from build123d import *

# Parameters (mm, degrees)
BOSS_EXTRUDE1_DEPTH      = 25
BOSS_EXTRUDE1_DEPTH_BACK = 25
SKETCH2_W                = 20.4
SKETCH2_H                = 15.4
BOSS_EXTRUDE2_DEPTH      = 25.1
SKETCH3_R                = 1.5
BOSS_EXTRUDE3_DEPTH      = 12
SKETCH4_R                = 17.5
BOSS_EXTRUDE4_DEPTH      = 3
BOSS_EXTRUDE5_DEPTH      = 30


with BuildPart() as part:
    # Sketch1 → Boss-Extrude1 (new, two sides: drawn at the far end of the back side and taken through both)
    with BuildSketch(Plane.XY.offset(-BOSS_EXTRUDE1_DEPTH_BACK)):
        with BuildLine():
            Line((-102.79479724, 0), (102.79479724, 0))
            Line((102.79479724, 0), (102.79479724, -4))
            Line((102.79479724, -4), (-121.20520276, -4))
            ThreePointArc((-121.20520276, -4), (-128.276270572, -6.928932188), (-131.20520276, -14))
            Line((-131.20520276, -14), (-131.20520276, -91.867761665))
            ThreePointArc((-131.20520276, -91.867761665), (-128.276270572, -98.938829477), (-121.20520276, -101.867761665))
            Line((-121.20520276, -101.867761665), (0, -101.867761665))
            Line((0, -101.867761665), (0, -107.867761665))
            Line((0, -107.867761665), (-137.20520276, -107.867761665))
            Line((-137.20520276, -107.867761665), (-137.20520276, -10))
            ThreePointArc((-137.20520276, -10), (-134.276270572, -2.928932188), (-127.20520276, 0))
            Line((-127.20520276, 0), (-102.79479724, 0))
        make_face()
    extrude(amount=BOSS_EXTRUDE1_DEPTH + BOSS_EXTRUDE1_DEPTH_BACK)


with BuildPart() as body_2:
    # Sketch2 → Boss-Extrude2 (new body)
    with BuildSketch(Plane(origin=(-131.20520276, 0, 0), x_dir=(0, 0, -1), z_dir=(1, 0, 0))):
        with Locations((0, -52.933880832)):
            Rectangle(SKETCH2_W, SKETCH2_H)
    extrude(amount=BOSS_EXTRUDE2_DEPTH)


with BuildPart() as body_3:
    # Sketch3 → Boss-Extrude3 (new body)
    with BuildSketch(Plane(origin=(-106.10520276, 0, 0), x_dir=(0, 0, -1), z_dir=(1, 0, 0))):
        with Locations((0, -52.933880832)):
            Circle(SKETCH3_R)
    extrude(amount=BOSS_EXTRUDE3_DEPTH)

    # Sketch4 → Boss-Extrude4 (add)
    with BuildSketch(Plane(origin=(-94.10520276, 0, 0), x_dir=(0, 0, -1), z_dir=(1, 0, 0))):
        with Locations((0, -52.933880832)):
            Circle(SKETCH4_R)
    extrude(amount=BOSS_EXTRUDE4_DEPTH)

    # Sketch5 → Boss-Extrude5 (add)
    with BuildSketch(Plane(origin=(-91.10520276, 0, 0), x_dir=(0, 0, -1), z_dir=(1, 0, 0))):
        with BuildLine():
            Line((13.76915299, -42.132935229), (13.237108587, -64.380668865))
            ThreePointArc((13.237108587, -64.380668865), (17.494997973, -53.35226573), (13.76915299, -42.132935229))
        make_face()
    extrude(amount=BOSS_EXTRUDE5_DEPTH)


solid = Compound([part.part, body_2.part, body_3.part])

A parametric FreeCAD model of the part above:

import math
import FreeCAD as App
import Part
import Sketcher
from FreeCAD import Vector


def add_polygon(sketch, points):
    """Adds a closed chain of lines whose ends are joined by coincident constraints."""
    first, n = sketch.GeometryCount, len(points)
    for a, b in zip(points, points[1:] + points[:1]):
        sketch.addGeometry(Part.LineSegment(App.Vector(*a, 0), App.Vector(*b, 0)), False)
    for i in range(n):
        sketch.addConstraint(Sketcher.Constraint("Coincident", first + i, 2, first + (i + 1) % n, 1))

doc = App.newDocument("Part")
body = doc.addObject("PartDesign::Body", "Body")

# Sketch on XY plane
sketch1 = body.newObject("Sketcher::SketchObject", "Sketch")
sketch1.AttachmentSupport = (doc.getObject("XY_Plane"), [""])
sketch1.MapMode = "FlatFace"
sketch1.addGeometry([
    Part.LineSegment(Vector(102.8, -4, 0), Vector(102.8, 0, 0)),  # 0
    Part.LineSegment(Vector(102.8, 0, 0), Vector(-127.2, 0, 0)),  # 1
    Part.ArcOfCircle(Part.Circle(Vector(-127.2, -10, 0), Vector(0, 0, 1), 10), math.radians(90), math.radians(180)),  # 2
    Part.LineSegment(Vector(-137.2, -10, 0), Vector(-137.2, -107.9, 0)),  # 3
    Part.LineSegment(Vector(-137.2, -107.9, 0), Vector(0, -107.9, 0)),  # 4
    Part.LineSegment(Vector(0, -107.9, 0), Vector(0, -101.9, 0)),  # 5
    Part.LineSegment(Vector(0, -101.9, 0), Vector(-121.2, -101.9, 0)),  # 6
    Part.ArcOfCircle(Part.Circle(Vector(-121.2, -91.9, 0), Vector(0, 0, 1), 10), math.radians(180), math.radians(270)),  # 7
    Part.LineSegment(Vector(-131.2, -91.9, 0), Vector(-131.2, -14, 0)),  # 8
    Part.ArcOfCircle(Part.Circle(Vector(-121.2, -14, 0), Vector(0, 0, 1), 10), math.radians(90), math.radians(180)),  # 9
    Part.LineSegment(Vector(-121.2, -4, 0), Vector(102.8, -4, 0)),  # 10
], False)
sketch1.addConstraint([
    Sketcher.Constraint("Coincident", 0, 2, 1, 1),
    Sketcher.Constraint("Tangent", 1, 2, 2, 1),
    Sketcher.Constraint("Tangent", 2, 2, 3, 1),
    Sketcher.Constraint("Coincident", 3, 2, 4, 1),
    Sketcher.Constraint("Coincident", 4, 2, 5, 1),
    Sketcher.Constraint("Coincident", 5, 2, 6, 1),
    Sketcher.Constraint("Tangent", 6, 2, 7, 2),
    Sketcher.Constraint("Tangent", 7, 1, 8, 1),
    Sketcher.Constraint("Tangent", 8, 2, 9, 2),
    Sketcher.Constraint("Tangent", 9, 1, 10, 1),
    Sketcher.Constraint("Coincident", 10, 2, 0, 1),
    Sketcher.Constraint("Vertical", 0),
    Sketcher.Constraint("Horizontal", 1),
    Sketcher.Constraint("Vertical", 3),
    Sketcher.Constraint("Horizontal", 4),
    Sketcher.Constraint("Vertical", 5),
    Sketcher.Constraint("Horizontal", 6),
    Sketcher.Constraint("Vertical", 8),
    Sketcher.Constraint("Horizontal", 10),
    Sketcher.Constraint("Equal", 2, 7),
    Sketcher.Constraint("Equal", 7, 9),
    Sketcher.Constraint("PointOnObject", 0, 2, -1),
    Sketcher.Constraint("PointOnObject", 4, 2, -2),
    Sketcher.Constraint("Radius", 2, 10.0),
    Sketcher.Constraint("DistanceX", 1, 2, 1, 1, 230.0),
    Sketcher.Constraint("DistanceX", 10, 1, 10, 2, 224.0),
    Sketcher.Constraint("DistanceY", 0, 1, 0, 2, 4.0),
    Sketcher.Constraint("DistanceY", 5, 1, 5, 2, 6.0),
    Sketcher.Constraint("DistanceY", 3, 2, 3, 1, 97.867762),
    Sketcher.Constraint("DistanceX", 4, 1, 4, 2, 137.205203),
])
pad1 = body.newObject("PartDesign::Pad", "Pad")
pad1.Profile = sketch1
pad1.Type = "TwoLengths"
pad1.Length = 25
pad1.Length2 = 25
body2 = doc.addObject("PartDesign::Body", "Body001")

# Sketch on YZ plane
sketch2 = body2.newObject("Sketcher::SketchObject", "Sketch001")
sketch2.AttachmentSupport = (doc.getObject("YZ_Plane001"), [""])
sketch2.MapMode = "FlatFace"
sketch2.AttachmentOffset = App.Placement(Vector(0, 0, -131.205203), App.Rotation())
add_polygon(sketch2, [(-45, 10), (-61, 10), (-61, -10), (-45, -10)])  # lines 0-3
sketch2.addConstraint([
    Sketcher.Constraint("Horizontal", 0),
    Sketcher.Constraint("Vertical", 1),
    Sketcher.Constraint("Horizontal", 2),
    Sketcher.Constraint("Vertical", 3),
    Sketcher.Constraint("DistanceX", 0, 2, 0, 1, 15.4),
    Sketcher.Constraint("DistanceY", 1, 2, 1, 1, 20.4),
    Sketcher.Constraint("DistanceY", -1, 1, 0, 2, 10.2),
    Sketcher.Constraint("DistanceX", 0, 2, -1, 1, 60.633881),
])
pad2 = body2.newObject("PartDesign::Pad", "Pad001")
pad2.Profile = sketch2
pad2.Length = 25.1
body3 = doc.addObject("PartDesign::Body", "Body002")

# Sketch on YZ plane
sketch3 = body3.newObject("Sketcher::SketchObject", "Sketch002")
sketch3.AttachmentSupport = (doc.getObject("YZ_Plane002"), [""])
sketch3.MapMode = "FlatFace"
sketch3.AttachmentOffset = App.Placement(Vector(0, 0, -106.105203), App.Rotation())
sketch3.addGeometry(Part.Circle(Vector(-52.9, 0, 0), Vector(0, 0, 1), 1.5), False)
sketch3.addConstraint([
    Sketcher.Constraint("PointOnObject", 0, 3, -1),
    Sketcher.Constraint("Diameter", 0, 3.0),
    Sketcher.Constraint("DistanceX", 0, 3, -1, 1, 52.933881),
])
pad3 = body3.newObject("PartDesign::Pad", "Pad002")
pad3.Profile = sketch3
pad3.Length = 12

# Sketch on YZ plane
sketch4 = body3.newObject("Sketcher::SketchObject", "Sketch003")
sketch4.AttachmentSupport = (doc.getObject("YZ_Plane002"), [""])
sketch4.MapMode = "FlatFace"
sketch4.AttachmentOffset = App.Placement(Vector(0, 0, -94.105203), App.Rotation())
sketch4.addGeometry(Part.Circle(Vector(-53, 0, 0), Vector(0, 0, 1), 18), False)
sketch4.addConstraint([
    Sketcher.Constraint("PointOnObject", 0, 3, -1),
    Sketcher.Constraint("Diameter", 0, 35.0),
    Sketcher.Constraint("DistanceX", 0, 3, -1, 1, 52.933881),
])
pad4 = body3.newObject("PartDesign::Pad", "Pad003")
pad4.Profile = sketch4
pad4.Length = 3

# Sketch on YZ plane
sketch5 = body3.newObject("Sketcher::SketchObject", "Sketch004")
sketch5.AttachmentSupport = (doc.getObject("YZ_Plane002"), [""])
sketch5.MapMode = "FlatFace"
sketch5.AttachmentOffset = App.Placement(Vector(0, 0, -91.105203), App.Rotation())
sketch5.addGeometry([
    Part.LineSegment(Vector(-42, -14, 0), Vector(-64, -13, 0)),
    Part.ArcOfCircle(Part.Circle(Vector(-53, 0, 0), Vector(0, 0, 1), 18), math.radians(-131), math.radians(-52)),
], False)
sketch5.addConstraint([
    Sketcher.Constraint("Coincident", 0, 1, 1, 2),
    Sketcher.Constraint("Coincident", 1, 1, 0, 2),
    Sketcher.Constraint("PointOnObject", 1, 3, -1),
    Sketcher.Constraint("Radius", 1, 17.5),
    Sketcher.Constraint("DistanceX", 1, 3, -1, 1, 52.933881),
    Sketcher.Constraint("DistanceX", 1, 1, -1, 1, 64.380669),
    Sketcher.Constraint("Distance", 0, 22.254095),
])
pad5 = body3.newObject("PartDesign::Pad", "Pad004")
pad5.Profile = sketch5
pad5.Length = 30

doc.recompute()
